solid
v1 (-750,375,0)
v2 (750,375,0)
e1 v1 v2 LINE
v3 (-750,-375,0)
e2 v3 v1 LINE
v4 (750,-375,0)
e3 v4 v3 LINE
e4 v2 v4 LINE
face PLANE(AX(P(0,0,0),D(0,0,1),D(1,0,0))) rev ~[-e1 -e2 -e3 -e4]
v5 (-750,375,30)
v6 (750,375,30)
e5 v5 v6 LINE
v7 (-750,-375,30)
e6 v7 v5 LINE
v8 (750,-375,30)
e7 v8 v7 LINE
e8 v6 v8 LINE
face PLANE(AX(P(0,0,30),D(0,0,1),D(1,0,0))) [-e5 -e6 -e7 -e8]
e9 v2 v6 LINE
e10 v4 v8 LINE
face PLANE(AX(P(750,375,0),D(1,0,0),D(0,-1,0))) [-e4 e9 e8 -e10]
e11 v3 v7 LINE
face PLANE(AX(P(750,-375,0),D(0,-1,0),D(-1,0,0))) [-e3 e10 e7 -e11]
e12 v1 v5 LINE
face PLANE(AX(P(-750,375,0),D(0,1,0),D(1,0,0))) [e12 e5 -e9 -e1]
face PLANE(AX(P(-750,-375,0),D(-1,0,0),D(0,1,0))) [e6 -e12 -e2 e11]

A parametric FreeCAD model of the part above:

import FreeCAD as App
import Part
import Sketcher
from FreeCAD import Vector


def add_polygon(sketch, points):
    """Adds a closed chain of lines whose ends are joined by coincident constraints."""
    first, n = sketch.GeometryCount, len(points)
    for a, b in zip(points, points[1:] + points[:1]):
        sketch.addGeometry(Part.LineSegment(App.Vector(*a, 0), App.Vector(*b, 0)), False)
    for i in range(n):
        sketch.addConstraint(Sketcher.Constraint("Coincident", first + i, 2, first + (i + 1) % n, 1))

doc = App.newDocument("Part")
body = doc.addObject("PartDesign::Body", "Body")

sketch1 = doc.addObject("Sketcher::SketchObject", "Sketch")
body.addObject(sketch1)
sketch1.AttachmentSupport = (doc.XY_Plane, [""])
sketch1.MapMode = "FlatFace"
add_polygon(sketch1, [(-750, -375), (750, -375), (750, 375), (-750, 375)])
sketch1.addConstraint([
    Sketcher.Constraint("Horizontal", 0),
    Sketcher.Constraint("Vertical", 1),
    Sketcher.Constraint("Horizontal", 2),
    Sketcher.Constraint("Vertical", 3),
    Sketcher.Constraint("Symmetric", 0, 2, 2, 2, -1, 1),
    Sketcher.Constraint("DistanceX", 0, 1, 0, 2, 1500.0),
    Sketcher.Constraint("DistanceY", 1, 1, 1, 2, 750.0),
])
pad1 = doc.addObject("PartDesign::Pad", "Pad")
body.addObject(pad1)
pad1.Profile = sketch1
pad1.Length = 30

doc.recompute()
